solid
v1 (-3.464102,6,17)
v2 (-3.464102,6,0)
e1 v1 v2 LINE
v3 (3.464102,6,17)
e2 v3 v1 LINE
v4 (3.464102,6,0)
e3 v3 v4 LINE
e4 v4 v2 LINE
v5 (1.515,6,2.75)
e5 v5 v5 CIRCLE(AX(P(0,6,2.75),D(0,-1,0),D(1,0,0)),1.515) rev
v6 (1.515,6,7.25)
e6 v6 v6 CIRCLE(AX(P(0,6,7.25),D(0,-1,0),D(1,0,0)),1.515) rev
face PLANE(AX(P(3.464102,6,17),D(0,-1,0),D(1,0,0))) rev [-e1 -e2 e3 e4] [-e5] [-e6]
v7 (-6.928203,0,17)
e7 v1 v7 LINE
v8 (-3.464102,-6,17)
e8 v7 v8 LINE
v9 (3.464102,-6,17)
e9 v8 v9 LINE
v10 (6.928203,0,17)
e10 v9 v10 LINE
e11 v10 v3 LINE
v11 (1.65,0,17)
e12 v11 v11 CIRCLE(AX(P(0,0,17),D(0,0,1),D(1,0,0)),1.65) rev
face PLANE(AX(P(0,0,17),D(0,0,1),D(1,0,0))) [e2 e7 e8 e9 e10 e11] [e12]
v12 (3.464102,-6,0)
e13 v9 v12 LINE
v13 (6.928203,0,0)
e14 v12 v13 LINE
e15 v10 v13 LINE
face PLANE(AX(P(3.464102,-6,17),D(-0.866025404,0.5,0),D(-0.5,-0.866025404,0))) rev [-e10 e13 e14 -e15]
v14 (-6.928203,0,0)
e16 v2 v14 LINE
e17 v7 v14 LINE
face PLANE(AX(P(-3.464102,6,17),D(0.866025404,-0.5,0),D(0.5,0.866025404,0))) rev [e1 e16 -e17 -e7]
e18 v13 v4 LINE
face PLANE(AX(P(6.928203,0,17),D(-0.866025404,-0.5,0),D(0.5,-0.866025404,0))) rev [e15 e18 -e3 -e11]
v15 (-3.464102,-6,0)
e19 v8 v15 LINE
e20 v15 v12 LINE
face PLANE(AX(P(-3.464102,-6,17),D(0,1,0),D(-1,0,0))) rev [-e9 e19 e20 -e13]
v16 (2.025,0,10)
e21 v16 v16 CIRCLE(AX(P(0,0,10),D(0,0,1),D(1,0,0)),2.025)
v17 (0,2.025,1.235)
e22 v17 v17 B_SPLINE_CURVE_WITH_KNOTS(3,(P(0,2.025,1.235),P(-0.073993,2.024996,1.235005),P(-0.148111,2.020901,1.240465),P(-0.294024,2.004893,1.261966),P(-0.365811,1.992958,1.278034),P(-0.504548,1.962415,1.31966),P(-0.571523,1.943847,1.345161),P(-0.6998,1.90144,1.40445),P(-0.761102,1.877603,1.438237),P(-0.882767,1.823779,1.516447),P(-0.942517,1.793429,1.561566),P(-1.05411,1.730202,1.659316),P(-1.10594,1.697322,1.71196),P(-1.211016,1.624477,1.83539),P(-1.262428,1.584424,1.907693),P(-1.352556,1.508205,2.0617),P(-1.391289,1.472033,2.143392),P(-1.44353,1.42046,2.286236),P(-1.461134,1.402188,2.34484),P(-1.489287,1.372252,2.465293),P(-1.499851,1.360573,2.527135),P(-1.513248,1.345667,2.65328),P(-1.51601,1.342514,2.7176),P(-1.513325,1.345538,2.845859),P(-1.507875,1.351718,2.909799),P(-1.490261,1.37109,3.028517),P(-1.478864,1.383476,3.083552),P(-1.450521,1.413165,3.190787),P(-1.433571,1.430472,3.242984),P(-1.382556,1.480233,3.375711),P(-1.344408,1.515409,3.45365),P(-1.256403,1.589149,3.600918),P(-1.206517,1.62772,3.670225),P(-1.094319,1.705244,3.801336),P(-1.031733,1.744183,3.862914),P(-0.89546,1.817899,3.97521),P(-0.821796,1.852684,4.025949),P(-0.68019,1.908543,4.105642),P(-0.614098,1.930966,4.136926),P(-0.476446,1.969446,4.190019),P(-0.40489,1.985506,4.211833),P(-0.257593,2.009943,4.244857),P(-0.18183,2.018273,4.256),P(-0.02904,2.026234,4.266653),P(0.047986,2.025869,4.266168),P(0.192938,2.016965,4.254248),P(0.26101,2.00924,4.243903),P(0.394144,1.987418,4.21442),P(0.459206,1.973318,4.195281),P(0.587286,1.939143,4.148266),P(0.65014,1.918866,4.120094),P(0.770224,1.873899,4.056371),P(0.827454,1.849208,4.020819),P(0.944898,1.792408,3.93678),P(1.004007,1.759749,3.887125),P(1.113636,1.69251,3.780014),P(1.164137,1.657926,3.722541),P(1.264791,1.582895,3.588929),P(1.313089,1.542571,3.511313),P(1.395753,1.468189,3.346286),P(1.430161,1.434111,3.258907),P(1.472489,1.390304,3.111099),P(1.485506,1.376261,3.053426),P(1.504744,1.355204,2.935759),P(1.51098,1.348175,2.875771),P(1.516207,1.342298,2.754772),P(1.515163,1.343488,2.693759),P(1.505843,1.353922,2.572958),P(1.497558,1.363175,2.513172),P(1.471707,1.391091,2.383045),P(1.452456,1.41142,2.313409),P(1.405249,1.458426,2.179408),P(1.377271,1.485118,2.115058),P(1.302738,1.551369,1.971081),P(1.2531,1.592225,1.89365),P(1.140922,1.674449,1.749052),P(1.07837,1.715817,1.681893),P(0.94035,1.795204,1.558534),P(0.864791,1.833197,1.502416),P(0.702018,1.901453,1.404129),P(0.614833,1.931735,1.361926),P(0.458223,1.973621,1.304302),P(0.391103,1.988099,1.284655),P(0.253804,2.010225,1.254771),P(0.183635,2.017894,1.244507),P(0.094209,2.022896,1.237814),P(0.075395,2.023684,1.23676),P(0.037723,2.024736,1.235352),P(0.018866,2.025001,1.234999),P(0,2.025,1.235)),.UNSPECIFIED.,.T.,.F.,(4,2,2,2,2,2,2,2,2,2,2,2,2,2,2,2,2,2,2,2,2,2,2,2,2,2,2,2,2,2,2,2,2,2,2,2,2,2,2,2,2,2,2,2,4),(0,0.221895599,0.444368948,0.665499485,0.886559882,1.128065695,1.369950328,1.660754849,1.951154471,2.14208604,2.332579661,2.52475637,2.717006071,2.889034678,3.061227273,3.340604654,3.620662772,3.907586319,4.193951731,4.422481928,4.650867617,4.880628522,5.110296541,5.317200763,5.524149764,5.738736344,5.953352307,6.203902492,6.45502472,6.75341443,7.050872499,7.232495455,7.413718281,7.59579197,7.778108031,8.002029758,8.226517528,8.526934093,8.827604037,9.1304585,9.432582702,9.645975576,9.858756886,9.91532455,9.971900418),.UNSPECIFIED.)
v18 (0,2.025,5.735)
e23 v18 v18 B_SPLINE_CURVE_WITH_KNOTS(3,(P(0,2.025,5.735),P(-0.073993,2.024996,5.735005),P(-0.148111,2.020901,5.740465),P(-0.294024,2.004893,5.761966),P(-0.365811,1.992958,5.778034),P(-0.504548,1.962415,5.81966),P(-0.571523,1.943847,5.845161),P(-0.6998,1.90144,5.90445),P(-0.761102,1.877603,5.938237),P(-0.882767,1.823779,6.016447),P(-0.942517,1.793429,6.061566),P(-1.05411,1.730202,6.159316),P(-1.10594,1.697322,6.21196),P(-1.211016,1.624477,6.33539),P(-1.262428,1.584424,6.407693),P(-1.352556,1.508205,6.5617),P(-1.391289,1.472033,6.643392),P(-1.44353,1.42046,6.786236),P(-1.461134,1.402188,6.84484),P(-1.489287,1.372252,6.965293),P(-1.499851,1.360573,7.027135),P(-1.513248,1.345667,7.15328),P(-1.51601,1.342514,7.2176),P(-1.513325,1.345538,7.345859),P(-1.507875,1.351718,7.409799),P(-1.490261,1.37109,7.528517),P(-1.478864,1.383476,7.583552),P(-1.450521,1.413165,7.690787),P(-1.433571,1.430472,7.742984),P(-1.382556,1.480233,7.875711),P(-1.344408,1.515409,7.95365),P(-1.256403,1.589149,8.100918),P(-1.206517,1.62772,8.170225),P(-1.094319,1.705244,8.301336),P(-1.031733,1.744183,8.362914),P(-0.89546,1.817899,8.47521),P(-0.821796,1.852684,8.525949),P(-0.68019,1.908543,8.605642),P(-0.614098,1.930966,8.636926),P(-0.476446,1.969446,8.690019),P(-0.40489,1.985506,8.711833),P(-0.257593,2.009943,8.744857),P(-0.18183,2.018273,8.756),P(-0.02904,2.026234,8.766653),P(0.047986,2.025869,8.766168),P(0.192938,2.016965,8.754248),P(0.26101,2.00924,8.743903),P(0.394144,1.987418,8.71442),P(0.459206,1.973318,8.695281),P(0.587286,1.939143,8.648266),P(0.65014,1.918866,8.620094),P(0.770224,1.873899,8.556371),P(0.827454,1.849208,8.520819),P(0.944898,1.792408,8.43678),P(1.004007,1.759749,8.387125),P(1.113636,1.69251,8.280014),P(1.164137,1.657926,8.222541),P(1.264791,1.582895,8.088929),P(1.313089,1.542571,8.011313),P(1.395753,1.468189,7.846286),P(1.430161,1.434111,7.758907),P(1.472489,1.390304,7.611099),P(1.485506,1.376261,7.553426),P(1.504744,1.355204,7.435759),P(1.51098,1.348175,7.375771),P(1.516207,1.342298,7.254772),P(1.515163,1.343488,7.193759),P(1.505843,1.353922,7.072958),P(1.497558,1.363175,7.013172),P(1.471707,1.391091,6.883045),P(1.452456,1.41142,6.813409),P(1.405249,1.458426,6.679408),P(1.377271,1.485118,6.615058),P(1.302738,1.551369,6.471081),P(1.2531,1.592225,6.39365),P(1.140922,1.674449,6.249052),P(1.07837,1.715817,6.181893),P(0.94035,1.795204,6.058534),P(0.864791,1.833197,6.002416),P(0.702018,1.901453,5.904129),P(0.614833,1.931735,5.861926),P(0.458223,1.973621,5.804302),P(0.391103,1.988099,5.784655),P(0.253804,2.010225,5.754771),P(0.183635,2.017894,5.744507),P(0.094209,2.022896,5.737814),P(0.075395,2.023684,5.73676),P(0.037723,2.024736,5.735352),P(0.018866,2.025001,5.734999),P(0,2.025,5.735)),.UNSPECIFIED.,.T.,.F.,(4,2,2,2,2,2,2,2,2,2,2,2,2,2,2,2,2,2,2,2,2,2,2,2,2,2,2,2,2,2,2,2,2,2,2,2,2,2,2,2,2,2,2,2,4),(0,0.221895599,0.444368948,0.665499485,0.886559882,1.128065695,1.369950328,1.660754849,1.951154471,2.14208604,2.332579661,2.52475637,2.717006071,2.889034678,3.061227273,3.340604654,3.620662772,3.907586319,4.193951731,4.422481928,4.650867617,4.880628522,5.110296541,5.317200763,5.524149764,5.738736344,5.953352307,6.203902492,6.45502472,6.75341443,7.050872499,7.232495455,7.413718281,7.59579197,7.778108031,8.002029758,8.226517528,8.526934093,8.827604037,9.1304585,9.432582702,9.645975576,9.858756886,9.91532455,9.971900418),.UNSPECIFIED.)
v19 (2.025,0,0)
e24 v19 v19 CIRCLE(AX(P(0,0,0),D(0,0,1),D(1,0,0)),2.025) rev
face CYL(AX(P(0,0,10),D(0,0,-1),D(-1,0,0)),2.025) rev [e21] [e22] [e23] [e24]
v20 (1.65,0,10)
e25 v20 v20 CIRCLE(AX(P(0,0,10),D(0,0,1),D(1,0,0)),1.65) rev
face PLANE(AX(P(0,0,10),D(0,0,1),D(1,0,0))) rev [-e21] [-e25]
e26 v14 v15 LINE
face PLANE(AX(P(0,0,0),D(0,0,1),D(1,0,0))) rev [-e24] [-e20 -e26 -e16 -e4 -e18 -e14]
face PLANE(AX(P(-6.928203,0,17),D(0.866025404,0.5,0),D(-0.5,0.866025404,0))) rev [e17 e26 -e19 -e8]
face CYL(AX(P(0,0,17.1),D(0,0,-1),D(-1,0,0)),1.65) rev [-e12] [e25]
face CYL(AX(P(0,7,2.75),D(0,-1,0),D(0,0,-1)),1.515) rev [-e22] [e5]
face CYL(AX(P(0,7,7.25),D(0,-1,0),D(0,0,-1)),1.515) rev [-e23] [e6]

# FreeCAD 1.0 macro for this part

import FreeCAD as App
import Part
import Sketcher
Q = App.Units.Quantity

doc = App.newDocument("Part")
body = doc.addObject("PartDesign::Body", "Body")

# Sketch on XY plane
sketch1 = body.newObject("Sketcher::SketchObject", "Sketch")
sketch1.AttachmentSupport = (doc.getObject("XY_Plane"), [""])
sketch1.MapMode = "FlatFace"
sketch1.addGeometry(Part.LineSegment(App.Vector(7, 0, 0), App.Vector(3, 6, 0)), False)
sketch1.addGeometry(Part.LineSegment(App.Vector(3, 6, 0), App.Vector(-3, 6, 0)), False)
sketch1.addGeometry(Part.LineSegment(App.Vector(-3, 6, 0), App.Vector(-7, 0, 0)), False)
sketch1.addGeometry(Part.LineSegment(App.Vector(-7, 0, 0), App.Vector(-3, -6, 0)), False)
sketch1.addGeometry(Part.LineSegment(App.Vector(-3, -6, 0), App.Vector(3, -6, 0)), False)
sketch1.addGeometry(Part.LineSegment(App.Vector(3, -6, 0), App.Vector(7, 0, 0)), False)
sketch1.addConstraint(Sketcher.Constraint("Coincident", 0, 2, 1, 1))
sketch1.addConstraint(Sketcher.Constraint("Coincident", 1, 2, 2, 1))
sketch1.addConstraint(Sketcher.Constraint("Coincident", 2, 2, 3, 1))
sketch1.addConstraint(Sketcher.Constraint("Coincident", 3, 2, 4, 1))
sketch1.addConstraint(Sketcher.Constraint("Coincident", 4, 2, 5, 1))
sketch1.addConstraint(Sketcher.Constraint("Coincident", 5, 2, 0, 1))
sketch1.addConstraint(Sketcher.Constraint("Horizontal", 1))
sketch1.addConstraint(Sketcher.Constraint("Horizontal", 4))
sketch1.addConstraint(Sketcher.Constraint("Symmetric", 0, 2, 3, 2, -1, 1))
sketch1.addConstraint(Sketcher.Constraint("Symmetric", 2, 2, 5, 2, -1, 1))
sketch1.addConstraint(Sketcher.Constraint("PointOnObject", 2, 2, -1))
sketch1.addConstraint(Sketcher.Constraint("Parallel", 2, 5))
sketch1.addConstraint(Sketcher.Constraint("Vertical", 1, 2, 3, 2))
sketch1.addConstraint(Sketcher.Constraint("Angle", 0, Q("120 deg")))
sketch1.addConstraint(Sketcher.Constraint("DistanceY", -1, 1, 0, 2, Q("6 mm")))
sketch1.addConstraint(Sketcher.Constraint("DistanceX", -1, 1, 0, 2, Q("3.464102 mm")))
pad1 = body.newObject("PartDesign::Pad", "Pad")
pad1.Profile = sketch1
pad1.Length = 17

# Sketch on XY plane
sketch2 = body.newObject("Sketcher::SketchObject", "Sketch001")
sketch2.AttachmentSupport = (doc.getObject("XY_Plane"), [""])
sketch2.MapMode = "FlatFace"
sketch2.AttachmentOffset = App.Placement(App.Vector(0, 0, -0.1), App.Rotation())
sketch2.addGeometry(Part.Circle(App.Vector(0, 0, 0), App.Vector(0, 0, 1), 2), False)
sketch2.addConstraint(Sketcher.Constraint("Coincident", 0, 3, -1, 1))
sketch2.addConstraint(Sketcher.Constraint("Diameter", 0, Q("4.05 mm")))
pocket1 = body.newObject("PartDesign::Pocket", "Pocket")
pocket1.Profile = sketch2
pocket1.Length = 10.1
pocket1.Reversed = True

# Sketch on XY plane
sketch3 = body.newObject("Sketcher::SketchObject", "Sketch002")
sketch3.AttachmentSupport = (doc.getObject("XY_Plane"), [""])
sketch3.MapMode = "FlatFace"
sketch3.AttachmentOffset = App.Placement(App.Vector(0, 0, 9.99), App.Rotation())
sketch3.addGeometry(Part.Circle(App.Vector(0, 0, 0), App.Vector(0, 0, 1), 1.6), False)
sketch3.addConstraint(Sketcher.Constraint("Coincident", 0, 3, -1, 1))
sketch3.addConstraint(Sketcher.Constraint("Diameter", 0, Q("3.3 mm")))
pocket2 = body.newObject("PartDesign::Pocket", "Pocket001")
pocket2.Profile = sketch3
pocket2.Length = 7.11
pocket2.Reversed = True

# Sketch on XZ plane
sketch4 = body.newObject("Sketcher::SketchObject", "Sketch003")
sketch4.AttachmentSupport = (doc.getObject("XZ_Plane"), [""])
sketch4.MapMode = "FlatFace"
sketch4.addGeometry(Part.Circle(App.Vector(0, 2.8, 0), App.Vector(0, 0, 1), 1.5), False)
sketch4.addConstraint(Sketcher.Constraint("PointOnObject", 0, 3, -2))
sketch4.addConstraint(Sketcher.Constraint("Diameter", 0, Q("3.03 mm")))
sketch4.addConstraint(Sketcher.Constraint("DistanceY", -1, 1, 0, 3, Q("2.75 mm")))
pocket3 = body.newObject("PartDesign::Pocket", "Pocket002")
pocket3.Profile = sketch4
pocket3.Length = 7

# Sketch on XZ plane
sketch5 = body.newObject("Sketcher::SketchObject", "Sketch004")
sketch5.AttachmentSupport = (doc.getObject("XZ_Plane"), [""])
sketch5.MapMode = "FlatFace"
sketch5.addGeometry(Part.Circle(App.Vector(0, 7.2, 0), App.Vector(0, 0, 1), 1.5), False)
sketch5.addConstraint(Sketcher.Constraint("PointOnObject", 0, 3, -2))
sketch5.addConstraint(Sketcher.Constraint("Diameter", 0, Q("3.03 mm")))
sketch5.addConstraint(Sketcher.Constraint("DistanceY", -1, 1, 0, 3, Q("7.25 mm")))
pocket4 = body.newObject("PartDesign::Pocket", "Pocket003")
pocket4.Profile = sketch5
pocket4.Length = 7

doc.recompute()
